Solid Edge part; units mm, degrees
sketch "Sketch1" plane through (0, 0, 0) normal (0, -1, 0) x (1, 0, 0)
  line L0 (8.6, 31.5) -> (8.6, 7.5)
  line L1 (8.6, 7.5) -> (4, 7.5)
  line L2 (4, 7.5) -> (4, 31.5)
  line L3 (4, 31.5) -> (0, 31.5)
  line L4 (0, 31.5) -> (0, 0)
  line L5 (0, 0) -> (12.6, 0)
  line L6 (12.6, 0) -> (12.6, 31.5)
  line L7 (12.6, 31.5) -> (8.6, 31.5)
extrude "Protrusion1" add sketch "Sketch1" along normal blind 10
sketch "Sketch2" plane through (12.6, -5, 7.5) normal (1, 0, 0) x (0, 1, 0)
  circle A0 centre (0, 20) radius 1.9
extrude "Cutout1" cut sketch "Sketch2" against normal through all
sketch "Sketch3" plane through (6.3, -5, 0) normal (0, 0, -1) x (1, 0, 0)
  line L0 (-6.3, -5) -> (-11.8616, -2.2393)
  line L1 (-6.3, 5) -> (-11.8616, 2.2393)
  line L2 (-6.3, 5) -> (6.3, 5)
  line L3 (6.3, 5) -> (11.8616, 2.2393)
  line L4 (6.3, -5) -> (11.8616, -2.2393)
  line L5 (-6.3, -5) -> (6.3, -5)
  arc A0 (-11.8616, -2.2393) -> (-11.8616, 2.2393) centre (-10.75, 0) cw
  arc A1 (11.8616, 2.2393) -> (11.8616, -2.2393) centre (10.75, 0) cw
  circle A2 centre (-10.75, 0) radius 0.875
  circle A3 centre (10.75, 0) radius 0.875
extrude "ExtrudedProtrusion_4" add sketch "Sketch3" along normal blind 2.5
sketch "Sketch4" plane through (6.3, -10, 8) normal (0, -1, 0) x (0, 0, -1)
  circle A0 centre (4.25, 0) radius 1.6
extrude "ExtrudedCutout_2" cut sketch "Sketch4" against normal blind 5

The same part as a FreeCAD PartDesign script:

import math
import FreeCAD as App
import Part
import Sketcher
from FreeCAD import Vector
Q = App.Units.Quantity

doc = App.newDocument("Part")
body = doc.addObject("PartDesign::Body", "Body")

# Sketch on XZ plane
sketch1 = body.newObject("Sketcher::SketchObject", "Sketch")
sketch1.AttachmentSupport = (doc.getObject("XZ_Plane"), [""])
sketch1.MapMode = "FlatFace"
sketch1.addGeometry([
    Part.LineSegment(Vector(12.6, 31.5, 0), Vector(8.6, 31.5, 0)),  # 0
    Part.LineSegment(Vector(8.6, 31.5, 0), Vector(8.6, 7.5, 0)),  # 1
    Part.LineSegment(Vector(8.6, 7.5, 0), Vector(4, 7.5, 0)),  # 2
    Part.LineSegment(Vector(4, 7.5, 0), Vector(4, 31.5, 0)),  # 3
    Part.LineSegment(Vector(4, 31.5, 0), Vector(0, 31.5, 0)),  # 4
    Part.LineSegment(Vector(0, 31.5, 0), Vector(0, 0, 0)),  # 5
    Part.LineSegment(Vector(0, 0, 0), Vector(12.6, 0, 0)),  # 6
    Part.LineSegment(Vector(12.6, 0, 0), Vector(12.6, 31.5, 0)),  # 7
], False)
sketch1.addConstraint([
    Sketcher.Constraint("Coincident", 0, 2, 1, 1),
    Sketcher.Constraint("Coincident", 1, 2, 2, 1),
    Sketcher.Constraint("Coincident", 2, 2, 3, 1),
    Sketcher.Constraint("Coincident", 3, 2, 4, 1),
    Sketcher.Constraint("Coincident", 4, 2, 5, 1),
    Sketcher.Constraint("Coincident", 5, 2, 6, 1),
    Sketcher.Constraint("Coincident", 6, 2, 7, 1),
    Sketcher.Constraint("Coincident", 7, 2, 0, 1),
    Sketcher.Constraint("Horizontal", 0),
    Sketcher.Constraint("Vertical", 1),
    Sketcher.Constraint("Horizontal", 2),
    Sketcher.Constraint("Vertical", 3),
    Sketcher.Constraint("Horizontal", 4),
    Sketcher.Constraint("Vertical", 5),
    Sketcher.Constraint("Horizontal", 6),
    Sketcher.Constraint("Vertical", 7),
    Sketcher.Constraint("Coincident", 5, 2, -1, 1),
    Sketcher.Constraint("Horizontal", 0, 2, 3, 2),
    Sketcher.Constraint("Equal", 0, 4),
    Sketcher.Constraint("DistanceX", 0, 2, 0, 1, Q("4 mm")),
    Sketcher.Constraint("DistanceY", 1, 2, 1, 1, Q("24 mm")),
    Sketcher.Constraint("DistanceX", 2, 2, 2, 1, Q("4.6 mm")),
    Sketcher.Constraint("DistanceY", 5, 2, 5, 1, Q("31.5 mm")),
])
pad1 = body.newObject("PartDesign::Pad", "Pad")
pad1.Profile = sketch1
pad1.Length = 10

# Sketch on YZ plane
sketch2 = body.newObject("Sketcher::SketchObject", "Sketch001")
sketch2.AttachmentSupport = (doc.getObject("YZ_Plane"), [""])
sketch2.MapMode = "FlatFace"
sketch2.AttachmentOffset = App.Placement(Vector(0, 0, 12.6), App.Rotation())
sketch2.addGeometry(Part.Circle(Vector(-5, 27.5, 0), Vector(0, 0, 1), 1.9), False)
sketch2.addConstraint([
    Sketcher.Constraint("Diameter", 0, Q("3.8 mm")),
    Sketcher.Constraint("DistanceX", 0, 3, -1, 1, Q("5 mm")),
    Sketcher.Constraint("DistanceY", -1, 1, 0, 3, Q("27.5 mm")),
])
pocket1 = body.newObject("PartDesign::Pocket", "Pocket")
pocket1.Profile = sketch2
pocket1.Type = "ThroughAll"

# Sketch on XY plane
sketch3 = body.newObject("Sketcher::SketchObject", "Sketch002")
sketch3.AttachmentSupport = (doc.getObject("XY_Plane"), [""])
sketch3.MapMode = "FlatFace"
sketch3.addGeometry([
    Part.LineSegment(Vector(-5.5616, -2.7607, 0), Vector(0, 0, 0)),  # 0
    Part.LineSegment(Vector(0, 0, 0), Vector(12.6, 0, 0)),  # 1
    Part.LineSegment(Vector(12.6, 0, 0), Vector(18.1616, -2.7607, 0)),  # 2
    Part.ArcOfCircle(Part.Circle(Vector(17.05, -5, 0), Vector(0, 0, 1), 2.500024), math.radians(-63.599963), math.radians(63.599963)),  # 3
    Part.LineSegment(Vector(18.1616, -7.2393, 0), Vector(12.6, -10, 0)),  # 4
    Part.LineSegment(Vector(12.6, -10, 0), Vector(0, -10, 0)),  # 5
    Part.LineSegment(Vector(0, -10, 0), Vector(-5.5616, -7.2393, 0)),  # 6
    Part.ArcOfCircle(Part.Circle(Vector(-4.45, -5, 0), Vector(0, 0, 1), 2.500024), math.radians(116.400037), math.radians(243.599963)),  # 7
    Part.Circle(Vector(-4.45, -5, 0), Vector(0, 0, 1), 0.875),  # 8
    Part.Circle(Vector(17.05, -5, 0), Vector(0, 0, 1), 0.875),  # 9
], False)
sketch3.addConstraint([
    Sketcher.Constraint("Coincident", 0, 2, 1, 1),
    Sketcher.Constraint("Coincident", 1, 2, 2, 1),
    Sketcher.Constraint("Tangent", 2, 2, 3, 2),
    Sketcher.Constraint("Tangent", 3, 1, 4, 1),
    Sketcher.Constraint("Coincident", 4, 2, 5, 1),
    Sketcher.Constraint("Coincident", 5, 2, 6, 1),
    Sketcher.Constraint("Tangent", 6, 2, 7, 2),
    Sketcher.Constraint("Tangent", 7, 1, 0, 1),
    Sketcher.Constraint("Horizontal", 1),
    Sketcher.Constraint("Horizontal", 5),
    Sketcher.Constraint("Coincident", 0, 2, -1, 1),
    Sketcher.Constraint("Coincident", 8, 3, 7, 3),
    Sketcher.Constraint("Coincident", 9, 3, 3, 3),
    Sketcher.Constraint("Equal", 3, 7),
    Sketcher.Constraint("Equal", 8, 9),
    Sketcher.Constraint("PointOnObject", 5, 2, -2),
    Sketcher.Constraint("Parallel", 0, 4),
    Sketcher.Constraint("Parallel", 2, 6),
    Sketcher.Constraint("Horizontal", 3, 3, 7, 3),
    Sketcher.Constraint("Horizontal", 3, 1, 6, 2),
    Sketcher.Constraint("Radius", 3, Q("2.5 mm")),
    Sketcher.Constraint("Diameter", 8, Q("1.75 mm")),
    Sketcher.Constraint("DistanceX", 1, 1, 1, 2, Q("12.6 mm")),
    Sketcher.Constraint("DistanceY", 3, 3, -1, 1, Q("5 mm")),
    Sketcher.Constraint("Angle", 0, Q("26.3992 deg")),
])
pad2 = body.newObject("PartDesign::Pad", "Pad001")
pad2.Profile = sketch3
pad2.Length = 2.5
pad2.Reversed = True

# Sketch on XZ plane
sketch4 = body.newObject("Sketcher::SketchObject", "Sketch003")
sketch4.AttachmentSupport = (doc.getObject("XZ_Plane"), [""])
sketch4.MapMode = "FlatFace"
sketch4.AttachmentOffset = App.Placement(Vector(0, 0, 10), App.Rotation())
sketch4.addGeometry(Part.Circle(Vector(6.3, 3.75, 0), Vector(0, 0, 1), 1.6), False)
sketch4.addConstraint([
    Sketcher.Constraint("Diameter", 0, Q("3.2 mm")),
    Sketcher.Constraint("DistanceX", -1, 1, 0, 3, Q("6.3 mm")),
    Sketcher.Constraint("DistanceY", -1, 1, 0, 3, Q("3.75 mm")),
])
pocket2 = body.newObject("PartDesign::Pocket", "Pocket001")
pocket2.Profile = sketch4
pocket2.Length = 5

doc.recompute()
